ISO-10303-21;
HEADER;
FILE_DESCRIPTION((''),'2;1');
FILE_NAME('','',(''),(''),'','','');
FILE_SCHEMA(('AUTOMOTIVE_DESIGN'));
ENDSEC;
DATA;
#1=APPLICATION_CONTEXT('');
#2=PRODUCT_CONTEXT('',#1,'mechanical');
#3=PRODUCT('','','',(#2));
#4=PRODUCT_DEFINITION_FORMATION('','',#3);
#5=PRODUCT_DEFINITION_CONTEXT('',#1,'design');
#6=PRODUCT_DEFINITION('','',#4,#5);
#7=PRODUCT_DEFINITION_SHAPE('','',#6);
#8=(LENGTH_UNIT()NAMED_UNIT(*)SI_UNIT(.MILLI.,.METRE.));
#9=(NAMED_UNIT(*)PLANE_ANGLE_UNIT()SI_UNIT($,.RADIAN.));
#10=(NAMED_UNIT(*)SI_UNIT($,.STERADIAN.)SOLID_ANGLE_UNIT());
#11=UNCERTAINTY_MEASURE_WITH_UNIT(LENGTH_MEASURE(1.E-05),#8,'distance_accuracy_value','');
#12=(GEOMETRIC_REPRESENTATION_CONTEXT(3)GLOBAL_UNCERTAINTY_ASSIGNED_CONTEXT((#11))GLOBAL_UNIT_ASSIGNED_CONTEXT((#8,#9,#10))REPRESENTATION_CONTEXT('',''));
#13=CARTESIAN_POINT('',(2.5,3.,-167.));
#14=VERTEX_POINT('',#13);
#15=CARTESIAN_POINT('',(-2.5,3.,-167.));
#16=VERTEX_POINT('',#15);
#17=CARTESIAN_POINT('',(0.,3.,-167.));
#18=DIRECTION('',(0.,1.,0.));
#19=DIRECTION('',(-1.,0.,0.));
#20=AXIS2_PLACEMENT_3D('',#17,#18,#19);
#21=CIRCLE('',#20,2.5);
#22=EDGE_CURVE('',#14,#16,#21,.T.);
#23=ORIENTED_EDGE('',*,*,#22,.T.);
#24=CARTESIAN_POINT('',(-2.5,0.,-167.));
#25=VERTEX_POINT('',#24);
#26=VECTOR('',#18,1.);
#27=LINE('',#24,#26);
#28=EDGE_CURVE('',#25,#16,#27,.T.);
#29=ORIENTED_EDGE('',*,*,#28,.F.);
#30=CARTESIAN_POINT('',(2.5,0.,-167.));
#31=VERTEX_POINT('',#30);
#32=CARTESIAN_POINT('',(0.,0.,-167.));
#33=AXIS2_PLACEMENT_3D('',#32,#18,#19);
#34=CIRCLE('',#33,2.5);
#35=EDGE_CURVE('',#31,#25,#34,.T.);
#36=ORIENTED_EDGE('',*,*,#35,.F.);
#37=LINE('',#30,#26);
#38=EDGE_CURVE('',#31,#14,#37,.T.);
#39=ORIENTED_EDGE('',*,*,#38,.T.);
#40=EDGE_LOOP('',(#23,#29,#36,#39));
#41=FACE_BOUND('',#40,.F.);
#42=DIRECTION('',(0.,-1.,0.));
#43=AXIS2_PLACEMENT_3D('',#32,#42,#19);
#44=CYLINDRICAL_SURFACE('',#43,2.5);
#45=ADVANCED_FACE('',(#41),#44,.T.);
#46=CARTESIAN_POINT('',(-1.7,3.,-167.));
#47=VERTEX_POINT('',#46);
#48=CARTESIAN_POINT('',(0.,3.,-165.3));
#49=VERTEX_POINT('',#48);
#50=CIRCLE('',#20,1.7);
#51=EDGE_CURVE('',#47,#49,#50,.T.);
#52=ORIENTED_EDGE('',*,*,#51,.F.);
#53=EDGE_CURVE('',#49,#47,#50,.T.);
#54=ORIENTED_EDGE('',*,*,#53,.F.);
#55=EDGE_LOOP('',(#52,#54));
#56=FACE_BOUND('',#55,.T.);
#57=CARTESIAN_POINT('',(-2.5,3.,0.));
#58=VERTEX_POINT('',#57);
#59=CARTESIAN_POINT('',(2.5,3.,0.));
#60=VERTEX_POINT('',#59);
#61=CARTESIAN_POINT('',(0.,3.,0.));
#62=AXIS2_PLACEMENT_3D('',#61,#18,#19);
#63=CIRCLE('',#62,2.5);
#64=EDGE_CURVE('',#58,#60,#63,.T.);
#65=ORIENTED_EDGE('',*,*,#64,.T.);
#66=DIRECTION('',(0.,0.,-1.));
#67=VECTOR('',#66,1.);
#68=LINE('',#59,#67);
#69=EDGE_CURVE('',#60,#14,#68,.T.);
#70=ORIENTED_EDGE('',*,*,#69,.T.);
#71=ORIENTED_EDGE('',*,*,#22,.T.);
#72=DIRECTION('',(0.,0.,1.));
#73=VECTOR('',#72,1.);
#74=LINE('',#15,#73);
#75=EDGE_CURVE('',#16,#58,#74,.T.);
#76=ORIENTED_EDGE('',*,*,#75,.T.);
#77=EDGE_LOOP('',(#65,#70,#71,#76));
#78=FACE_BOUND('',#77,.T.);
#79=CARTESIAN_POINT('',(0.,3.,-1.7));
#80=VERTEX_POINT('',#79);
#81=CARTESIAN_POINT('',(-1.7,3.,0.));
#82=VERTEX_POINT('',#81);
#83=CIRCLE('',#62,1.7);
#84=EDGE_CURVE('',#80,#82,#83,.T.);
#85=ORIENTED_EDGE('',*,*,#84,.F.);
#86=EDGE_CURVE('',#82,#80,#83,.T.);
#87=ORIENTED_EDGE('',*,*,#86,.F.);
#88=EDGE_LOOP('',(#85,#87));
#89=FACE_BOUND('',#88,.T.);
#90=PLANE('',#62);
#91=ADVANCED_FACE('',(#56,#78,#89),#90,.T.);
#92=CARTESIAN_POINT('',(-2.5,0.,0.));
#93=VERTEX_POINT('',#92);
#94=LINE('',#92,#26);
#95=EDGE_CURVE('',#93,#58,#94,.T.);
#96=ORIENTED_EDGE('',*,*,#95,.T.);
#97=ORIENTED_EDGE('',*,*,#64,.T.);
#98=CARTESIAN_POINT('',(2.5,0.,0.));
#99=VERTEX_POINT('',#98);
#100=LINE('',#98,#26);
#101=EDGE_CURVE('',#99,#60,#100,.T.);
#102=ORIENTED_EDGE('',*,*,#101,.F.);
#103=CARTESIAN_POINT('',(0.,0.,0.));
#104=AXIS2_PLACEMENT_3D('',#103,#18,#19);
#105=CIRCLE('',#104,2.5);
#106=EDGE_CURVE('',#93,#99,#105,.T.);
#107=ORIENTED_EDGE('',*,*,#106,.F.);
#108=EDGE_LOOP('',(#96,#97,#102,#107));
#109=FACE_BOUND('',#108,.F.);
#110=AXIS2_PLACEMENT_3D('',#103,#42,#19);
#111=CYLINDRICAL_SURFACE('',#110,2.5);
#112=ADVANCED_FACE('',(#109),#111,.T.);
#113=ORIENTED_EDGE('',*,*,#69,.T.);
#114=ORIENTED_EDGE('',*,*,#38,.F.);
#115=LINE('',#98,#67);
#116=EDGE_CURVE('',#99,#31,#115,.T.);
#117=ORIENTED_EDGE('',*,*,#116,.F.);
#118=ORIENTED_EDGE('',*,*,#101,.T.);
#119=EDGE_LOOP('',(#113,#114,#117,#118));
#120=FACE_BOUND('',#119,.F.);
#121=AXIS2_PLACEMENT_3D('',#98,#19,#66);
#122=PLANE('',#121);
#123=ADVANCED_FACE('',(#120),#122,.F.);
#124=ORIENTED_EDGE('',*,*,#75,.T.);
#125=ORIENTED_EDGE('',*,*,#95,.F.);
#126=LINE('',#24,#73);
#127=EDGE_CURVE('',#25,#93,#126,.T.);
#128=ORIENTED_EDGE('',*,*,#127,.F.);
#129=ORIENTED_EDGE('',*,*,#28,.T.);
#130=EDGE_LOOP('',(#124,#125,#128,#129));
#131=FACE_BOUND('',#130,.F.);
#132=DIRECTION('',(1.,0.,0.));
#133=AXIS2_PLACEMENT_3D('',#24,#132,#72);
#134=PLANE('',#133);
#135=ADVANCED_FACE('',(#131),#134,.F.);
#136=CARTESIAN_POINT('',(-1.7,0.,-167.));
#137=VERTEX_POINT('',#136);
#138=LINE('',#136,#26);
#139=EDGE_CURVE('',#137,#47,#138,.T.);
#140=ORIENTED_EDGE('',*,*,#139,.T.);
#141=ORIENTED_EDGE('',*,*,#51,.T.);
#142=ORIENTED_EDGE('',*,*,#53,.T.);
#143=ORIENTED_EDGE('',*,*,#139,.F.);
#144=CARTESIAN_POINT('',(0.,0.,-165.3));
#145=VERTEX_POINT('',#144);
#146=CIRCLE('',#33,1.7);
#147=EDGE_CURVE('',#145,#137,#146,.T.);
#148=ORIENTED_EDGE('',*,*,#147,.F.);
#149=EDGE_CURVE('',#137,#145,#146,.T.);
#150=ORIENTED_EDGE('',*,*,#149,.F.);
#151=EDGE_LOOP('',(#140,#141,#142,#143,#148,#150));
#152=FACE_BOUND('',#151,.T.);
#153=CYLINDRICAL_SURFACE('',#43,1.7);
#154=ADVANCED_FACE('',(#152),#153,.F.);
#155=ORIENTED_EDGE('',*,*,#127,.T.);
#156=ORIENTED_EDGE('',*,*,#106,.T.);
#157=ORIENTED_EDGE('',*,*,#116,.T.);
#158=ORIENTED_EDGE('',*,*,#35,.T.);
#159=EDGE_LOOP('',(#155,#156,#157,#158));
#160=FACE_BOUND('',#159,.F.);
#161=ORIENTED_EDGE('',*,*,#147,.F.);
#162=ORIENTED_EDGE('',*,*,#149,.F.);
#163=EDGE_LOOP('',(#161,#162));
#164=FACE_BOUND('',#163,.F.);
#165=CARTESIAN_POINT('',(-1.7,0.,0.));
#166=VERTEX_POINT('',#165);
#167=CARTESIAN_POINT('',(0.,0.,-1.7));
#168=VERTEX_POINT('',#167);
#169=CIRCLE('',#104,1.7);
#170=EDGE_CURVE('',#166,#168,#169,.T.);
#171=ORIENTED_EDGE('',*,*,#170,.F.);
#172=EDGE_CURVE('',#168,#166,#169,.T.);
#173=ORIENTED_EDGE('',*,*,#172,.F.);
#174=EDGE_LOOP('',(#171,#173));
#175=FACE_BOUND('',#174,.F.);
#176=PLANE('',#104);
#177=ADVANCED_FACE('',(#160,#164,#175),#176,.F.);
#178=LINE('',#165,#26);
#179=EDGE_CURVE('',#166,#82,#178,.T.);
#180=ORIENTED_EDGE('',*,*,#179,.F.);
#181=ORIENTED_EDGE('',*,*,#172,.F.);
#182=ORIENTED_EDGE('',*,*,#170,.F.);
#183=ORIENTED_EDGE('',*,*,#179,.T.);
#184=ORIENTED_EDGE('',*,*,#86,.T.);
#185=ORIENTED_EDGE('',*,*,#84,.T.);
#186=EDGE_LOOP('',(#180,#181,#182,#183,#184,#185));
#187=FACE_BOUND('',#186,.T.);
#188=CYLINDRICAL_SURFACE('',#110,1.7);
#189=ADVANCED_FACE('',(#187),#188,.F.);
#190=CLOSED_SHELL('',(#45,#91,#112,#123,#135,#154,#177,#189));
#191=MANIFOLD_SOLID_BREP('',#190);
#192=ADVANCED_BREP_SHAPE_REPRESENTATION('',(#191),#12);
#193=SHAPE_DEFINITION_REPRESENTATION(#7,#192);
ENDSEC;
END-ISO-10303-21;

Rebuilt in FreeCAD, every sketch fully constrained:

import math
import FreeCAD as App
import Part
import Sketcher
Q = App.Units.Quantity

doc = App.newDocument("Part")
params = doc.addObject("Spreadsheet::Sheet", "Params")
for row, (alias, value) in enumerate([
    ("sketch1_diameter", "3.4 mm"),
    ("sketch1_radius", "2.5 mm"),
    ("sketch1_height", "167 mm"),
    ("pad1_length", "3 mm"),
], start=1):
    params.set(f"A{row}", alias)
    params.set(f"B{row}", "=" + value)
    params.setAlias(f"B{row}", alias)

body = doc.addObject("PartDesign::Body", "Body")

# Sketch on XZ plane
sketch1 = body.newObject("Sketcher::SketchObject", "Sketch")
sketch1.AttachmentSupport = (doc.getObject("XZ_Plane"), [""])
sketch1.MapMode = "FlatFace"
sketch1.addGeometry(Part.ArcOfCircle(Part.Circle(App.Vector(0, 0, 0), App.Vector(0, 0, 1), 2.5), math.radians(0), math.radians(180)), False)
sketch1.addGeometry(Part.LineSegment(App.Vector(2.5, 0, 0), App.Vector(2.5, -167, 0)), False)
sketch1.addGeometry(Part.ArcOfCircle(Part.Circle(App.Vector(0, -167, 0), App.Vector(0, 0, 1), 2.5), math.radians(180), math.radians(360)), False)
sketch1.addGeometry(Part.LineSegment(App.Vector(-2.5, -167, 0), App.Vector(-2.5, 0, 0)), False)
sketch1.addGeometry(Part.Circle(App.Vector(0, 0, 0), App.Vector(0, 0, 1), 1.7), False)
sketch1.addGeometry(Part.Circle(App.Vector(0, -167, 0), App.Vector(0, 0, 1), 1.7), False)
sketch1.addConstraint(Sketcher.Constraint("Tangent", 0, 1, 1, 1))
sketch1.addConstraint(Sketcher.Constraint("Tangent", 1, 2, 2, 2))
sketch1.addConstraint(Sketcher.Constraint("Tangent", 2, 1, 3, 1))
sketch1.addConstraint(Sketcher.Constraint("Tangent", 3, 2, 0, 2))
sketch1.addConstraint(Sketcher.Constraint("Vertical", 1))
sketch1.addConstraint(Sketcher.Constraint("Vertical", 3))
sketch1.addConstraint(Sketcher.Constraint("Coincident", 0, 3, -1, 1))
sketch1.addConstraint(Sketcher.Constraint("Coincident", 4, 3, -1, 1))
sketch1.addConstraint(Sketcher.Constraint("Coincident", 5, 3, 2, 3))
sketch1.addConstraint(Sketcher.Constraint("Equal", 4, 5))
sketch1.addConstraint(Sketcher.Constraint("Diameter", 4, Q("3.4 mm")))
sketch1.addConstraint(Sketcher.Constraint("Radius", 0, Q("2.5 mm")))
sketch1.addConstraint(Sketcher.Constraint("DistanceY", 1, 2, 1, 1, Q("167 mm")))
sketch1.setExpression("Constraints[10]", "Params.sketch1_diameter")
sketch1.setExpression("Constraints[11]", "Params.sketch1_radius")
sketch1.setExpression("Constraints[12]", "Params.sketch1_height")
pad1 = body.newObject("PartDesign::Pad", "Pad")
pad1.Profile = sketch1
pad1.setExpression("Length", "Params.pad1_length")
pad1.Reversed = True

doc.recompute()
